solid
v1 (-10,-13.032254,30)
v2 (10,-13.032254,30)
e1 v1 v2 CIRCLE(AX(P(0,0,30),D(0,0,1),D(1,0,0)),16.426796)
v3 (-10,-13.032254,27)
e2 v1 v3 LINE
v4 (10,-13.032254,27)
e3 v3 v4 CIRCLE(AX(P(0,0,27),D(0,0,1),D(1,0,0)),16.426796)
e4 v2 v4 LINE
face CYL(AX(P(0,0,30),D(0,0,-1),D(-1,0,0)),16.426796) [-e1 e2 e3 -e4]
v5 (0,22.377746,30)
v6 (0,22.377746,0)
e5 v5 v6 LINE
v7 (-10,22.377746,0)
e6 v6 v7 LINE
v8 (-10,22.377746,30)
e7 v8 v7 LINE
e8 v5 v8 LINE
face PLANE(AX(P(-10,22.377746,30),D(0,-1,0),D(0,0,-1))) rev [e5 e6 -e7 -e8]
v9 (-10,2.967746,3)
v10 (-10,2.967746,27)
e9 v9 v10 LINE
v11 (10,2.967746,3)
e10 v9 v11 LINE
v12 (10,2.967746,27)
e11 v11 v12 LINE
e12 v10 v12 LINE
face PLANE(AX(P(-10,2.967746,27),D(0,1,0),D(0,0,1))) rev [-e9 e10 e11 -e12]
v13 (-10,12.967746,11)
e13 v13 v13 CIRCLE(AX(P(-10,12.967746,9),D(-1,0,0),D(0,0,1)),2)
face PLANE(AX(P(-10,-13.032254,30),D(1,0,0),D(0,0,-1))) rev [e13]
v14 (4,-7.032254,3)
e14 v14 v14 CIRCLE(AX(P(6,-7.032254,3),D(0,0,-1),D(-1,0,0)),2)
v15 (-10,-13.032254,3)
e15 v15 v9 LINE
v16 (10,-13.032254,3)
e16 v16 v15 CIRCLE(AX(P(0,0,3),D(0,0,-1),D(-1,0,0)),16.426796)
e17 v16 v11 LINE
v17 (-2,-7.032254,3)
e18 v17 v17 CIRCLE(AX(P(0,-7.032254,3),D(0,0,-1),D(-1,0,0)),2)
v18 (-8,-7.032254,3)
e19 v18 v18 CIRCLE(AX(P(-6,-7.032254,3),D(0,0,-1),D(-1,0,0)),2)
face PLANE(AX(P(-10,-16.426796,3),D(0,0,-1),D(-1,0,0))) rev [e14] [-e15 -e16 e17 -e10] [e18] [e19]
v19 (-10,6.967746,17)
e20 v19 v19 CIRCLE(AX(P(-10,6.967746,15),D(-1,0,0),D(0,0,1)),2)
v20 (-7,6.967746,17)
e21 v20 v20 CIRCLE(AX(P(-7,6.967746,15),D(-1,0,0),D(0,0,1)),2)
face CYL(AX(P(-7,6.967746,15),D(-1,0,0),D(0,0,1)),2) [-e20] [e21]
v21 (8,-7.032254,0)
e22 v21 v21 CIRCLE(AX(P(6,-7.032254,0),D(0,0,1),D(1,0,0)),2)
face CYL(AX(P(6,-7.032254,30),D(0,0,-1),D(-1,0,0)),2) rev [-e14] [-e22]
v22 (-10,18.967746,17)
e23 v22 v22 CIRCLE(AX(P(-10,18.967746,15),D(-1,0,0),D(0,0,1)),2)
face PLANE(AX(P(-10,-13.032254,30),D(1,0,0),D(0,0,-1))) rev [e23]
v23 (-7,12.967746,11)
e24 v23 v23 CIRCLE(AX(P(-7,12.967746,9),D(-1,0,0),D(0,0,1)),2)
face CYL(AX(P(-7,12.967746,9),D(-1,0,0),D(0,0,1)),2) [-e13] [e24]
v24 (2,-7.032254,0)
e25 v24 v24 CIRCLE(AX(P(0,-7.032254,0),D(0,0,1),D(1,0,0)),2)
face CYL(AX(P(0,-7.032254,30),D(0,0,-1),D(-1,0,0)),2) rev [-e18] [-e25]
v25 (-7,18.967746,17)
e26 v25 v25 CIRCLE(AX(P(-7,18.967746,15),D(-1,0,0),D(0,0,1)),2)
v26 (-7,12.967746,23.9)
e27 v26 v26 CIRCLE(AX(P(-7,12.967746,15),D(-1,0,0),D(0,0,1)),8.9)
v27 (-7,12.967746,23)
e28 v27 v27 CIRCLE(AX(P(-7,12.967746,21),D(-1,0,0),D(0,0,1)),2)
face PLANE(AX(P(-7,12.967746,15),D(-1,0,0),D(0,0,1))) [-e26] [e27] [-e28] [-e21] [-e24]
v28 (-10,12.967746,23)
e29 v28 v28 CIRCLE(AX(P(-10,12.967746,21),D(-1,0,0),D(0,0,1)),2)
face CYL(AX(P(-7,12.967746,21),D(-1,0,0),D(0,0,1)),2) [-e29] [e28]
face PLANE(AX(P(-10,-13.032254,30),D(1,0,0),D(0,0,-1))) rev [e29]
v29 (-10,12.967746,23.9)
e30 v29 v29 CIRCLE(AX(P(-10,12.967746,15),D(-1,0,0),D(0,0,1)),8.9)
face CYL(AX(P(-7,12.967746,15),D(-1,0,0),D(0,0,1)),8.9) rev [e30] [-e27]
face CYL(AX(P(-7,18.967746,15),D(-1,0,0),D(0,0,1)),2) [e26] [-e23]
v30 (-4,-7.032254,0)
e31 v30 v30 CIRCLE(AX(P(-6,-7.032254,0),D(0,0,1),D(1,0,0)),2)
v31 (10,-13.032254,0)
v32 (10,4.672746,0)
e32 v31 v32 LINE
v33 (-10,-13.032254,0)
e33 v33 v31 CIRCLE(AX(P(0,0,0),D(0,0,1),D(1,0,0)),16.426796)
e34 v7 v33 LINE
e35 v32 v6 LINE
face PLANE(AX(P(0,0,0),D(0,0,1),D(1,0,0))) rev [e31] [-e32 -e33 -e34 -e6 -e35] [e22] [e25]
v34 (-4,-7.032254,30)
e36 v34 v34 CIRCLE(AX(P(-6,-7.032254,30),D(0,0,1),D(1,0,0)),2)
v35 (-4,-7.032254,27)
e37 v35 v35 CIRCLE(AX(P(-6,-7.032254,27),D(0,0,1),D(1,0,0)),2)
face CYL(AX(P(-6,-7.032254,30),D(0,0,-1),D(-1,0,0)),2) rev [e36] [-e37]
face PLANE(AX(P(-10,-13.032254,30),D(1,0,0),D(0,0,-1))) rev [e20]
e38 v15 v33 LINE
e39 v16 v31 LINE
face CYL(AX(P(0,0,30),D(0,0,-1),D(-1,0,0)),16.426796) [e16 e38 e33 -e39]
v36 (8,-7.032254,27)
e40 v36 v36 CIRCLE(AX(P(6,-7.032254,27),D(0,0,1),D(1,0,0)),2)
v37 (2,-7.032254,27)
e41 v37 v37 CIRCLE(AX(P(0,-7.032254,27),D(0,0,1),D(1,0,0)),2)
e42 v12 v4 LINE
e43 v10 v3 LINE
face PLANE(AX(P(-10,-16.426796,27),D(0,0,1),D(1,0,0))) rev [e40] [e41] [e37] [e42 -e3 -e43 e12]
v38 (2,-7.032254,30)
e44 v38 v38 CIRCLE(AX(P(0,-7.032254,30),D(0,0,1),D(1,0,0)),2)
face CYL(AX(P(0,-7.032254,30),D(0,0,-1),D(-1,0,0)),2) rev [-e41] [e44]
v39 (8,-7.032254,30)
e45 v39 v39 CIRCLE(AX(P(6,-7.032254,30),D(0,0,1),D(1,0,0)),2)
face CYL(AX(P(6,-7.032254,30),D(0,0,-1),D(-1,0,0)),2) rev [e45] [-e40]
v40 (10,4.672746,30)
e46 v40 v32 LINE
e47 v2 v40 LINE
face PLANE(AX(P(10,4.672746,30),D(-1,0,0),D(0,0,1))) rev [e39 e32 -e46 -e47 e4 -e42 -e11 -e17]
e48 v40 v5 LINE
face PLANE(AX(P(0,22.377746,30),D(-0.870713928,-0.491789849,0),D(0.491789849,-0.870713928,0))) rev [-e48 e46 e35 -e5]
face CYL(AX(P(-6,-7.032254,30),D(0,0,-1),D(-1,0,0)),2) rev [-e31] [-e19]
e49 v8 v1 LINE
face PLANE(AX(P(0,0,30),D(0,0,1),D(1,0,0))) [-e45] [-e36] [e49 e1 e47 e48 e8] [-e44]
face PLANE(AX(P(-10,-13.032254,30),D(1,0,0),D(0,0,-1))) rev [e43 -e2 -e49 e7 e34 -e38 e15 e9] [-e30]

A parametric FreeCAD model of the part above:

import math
import FreeCAD as App
import Part
import Sketcher
Q = App.Units.Quantity


def add_polygon(sketch, points):
    """Adds a closed chain of lines whose ends are joined by coincident constraints."""
    first, n = sketch.GeometryCount, len(points)
    for a, b in zip(points, points[1:] + points[:1]):
        sketch.addGeometry(Part.LineSegment(App.Vector(*a, 0), App.Vector(*b, 0)), False)
    for i in range(n):
        sketch.addConstraint(Sketcher.Constraint("Coincident", first + i, 2, first + (i + 1) % n, 1))

doc = App.newDocument("Part")
body = doc.addObject("PartDesign::Body", "Body")

# Sketch on XY plane
sketch1 = body.newObject("Sketcher::SketchObject", "Sketch")
sketch1.AttachmentSupport = (doc.getObject("XY_Plane"), [""])
sketch1.MapMode = "FlatFace"
sketch1.addGeometry(Part.LineSegment(App.Vector(0, 22.4, 0), App.Vector(-10, 22.4, 0)), False)
sketch1.addGeometry(Part.LineSegment(App.Vector(-10, 22.4, 0), App.Vector(-10, -13, 0)), False)
sketch1.addGeometry(Part.ArcOfCircle(Part.Circle(App.Vector(0, 0, 0), App.Vector(0, 0, 1), 16.4), math.radians(-128), math.radians(-52)), False)
sketch1.addGeometry(Part.LineSegment(App.Vector(10, -13, 0), App.Vector(10, 4.7, 0)), False)
sketch1.addGeometry(Part.LineSegment(App.Vector(10, 4.7, 0), App.Vector(0, 22.4, 0)), False)
sketch1.addGeometry(Part.Circle(App.Vector(6, -7, 0), App.Vector(0, 0, 1), 2), False)
sketch1.addGeometry(Part.Circle(App.Vector(0, -7, 0), App.Vector(0, 0, 1), 2), False)
sketch1.addGeometry(Part.Circle(App.Vector(-6, -7, 0), App.Vector(0, 0, 1), 2), False)
sketch1.addConstraint(Sketcher.Constraint("Coincident", 0, 2, 1, 1))
sketch1.addConstraint(Sketcher.Constraint("Coincident", 1, 2, 2, 1))
sketch1.addConstraint(Sketcher.Constraint("Coincident", 2, 2, 3, 1))
sketch1.addConstraint(Sketcher.Constraint("Coincident", 3, 2, 4, 1))
sketch1.addConstraint(Sketcher.Constraint("Coincident", 4, 2, 0, 1))
sketch1.addConstraint(Sketcher.Constraint("Horizontal", 0))
sketch1.addConstraint(Sketcher.Constraint("Vertical", 1))
sketch1.addConstraint(Sketcher.Constraint("Vertical", 3))
sketch1.addConstraint(Sketcher.Constraint("Coincident", 2, 3, -1, 1))
sketch1.addConstraint(Sketcher.Constraint("Equal", 5, 6))
sketch1.addConstraint(Sketcher.Constraint("Equal", 6, 7))
sketch1.addConstraint(Sketcher.Constraint("Symmetric", 5, 3, 7, 3, -2))
sketch1.addConstraint(Sketcher.Constraint("PointOnObject", 6, 3, -2))
sketch1.addConstraint(Sketcher.Constraint("PointOnObject", 4, 2, -2))
sketch1.addConstraint(Sketcher.Constraint("Horizontal", 5, 3, 6, 3))
sketch1.addConstraint(Sketcher.Constraint("Horizontal", 1, 2, 2, 2))
sketch1.addConstraint(Sketcher.Constraint("Diameter", 5, Q("4 mm")))
sketch1.addConstraint(Sketcher.Constraint("DistanceX", 0, 2, 0, 1, Q("10 mm")))
sketch1.addConstraint(Sketcher.Constraint("DistanceX", -1, 1, 5, 3, Q("6 mm")))
sketch1.addConstraint(Sketcher.Constraint("DistanceY", 1, 2, 7, 3, Q("6 mm")))
sketch1.addConstraint(Sketcher.Constraint("DistanceY", 1, 2, 1, 1, Q("35.41 mm")))
sketch1.addConstraint(Sketcher.Constraint("DistanceY", 3, 1, 3, 2, Q("17.705 mm")))
sketch1.addConstraint(Sketcher.Constraint("Radius", 2, Q("16.426796 mm")))
pad1 = body.newObject("PartDesign::Pad", "Pad")
pad1.Profile = sketch1
pad1.Length = 30

# Sketch on YZ plane
sketch2 = body.newObject("Sketcher::SketchObject", "Sketch001")
sketch2.AttachmentSupport = (doc.getObject("YZ_Plane"), [""])
sketch2.MapMode = "FlatFace"
sketch2.AttachmentOffset = App.Placement(App.Vector(0, 0, 10), App.Rotation())
add_polygon(sketch2, [(3, 27), (-16, 27), (-16, 3), (3, 3)])  # lines 0-3
sketch2.addConstraint(Sketcher.Constraint("Horizontal", 0))
sketch2.addConstraint(Sketcher.Constraint("Vertical", 1))
sketch2.addConstraint(Sketcher.Constraint("Horizontal", 2))
sketch2.addConstraint(Sketcher.Constraint("Vertical", 3))
sketch2.addConstraint(Sketcher.Constraint("DistanceY", 1, 2, 1, 1, Q("24 mm")))
sketch2.addConstraint(Sketcher.Constraint("DistanceY", -1, 1, 0, 2, Q("27 mm")))
sketch2.addConstraint(Sketcher.Constraint("DistanceX", 0, 2, 0, 1, Q("19.394543 mm")))
sketch2.addConstraint(Sketcher.Constraint("DistanceX", 0, 2, -1, 1, Q("16.426796 mm")))
pocket1 = body.newObject("PartDesign::Pocket", "Pocket")
pocket1.Profile = sketch2
pocket1.Type = "ThroughAll"

# Sketch on YZ plane
sketch3 = body.newObject("Sketcher::SketchObject", "Sketch002")
sketch3.AttachmentSupport = (doc.getObject("YZ_Plane"), [""])
sketch3.MapMode = "FlatFace"
sketch3.AttachmentOffset = App.Placement(App.Vector(0, 0, -10), App.Rotation())
sketch3.addGeometry(Part.Circle(App.Vector(13, 15, 0), App.Vector(0, 0, 1), 8.9), False)
sketch3.addGeometry(Part.Circle(App.Vector(13, 9, 0), App.Vector(0, 0, 1), 2), False)
sketch3.addGeometry(Part.Circle(App.Vector(7, 15, 0), App.Vector(0, 0, 1), 2), False)
sketch3.addGeometry(Part.Circle(App.Vector(13, 21, 0), App.Vector(0, 0, 1), 2), False)
sketch3.addGeometry(Part.Circle(App.Vector(19, 15, 0), App.Vector(0, 0, 1), 2), False)
sketch3.addConstraint(Sketcher.Constraint("Equal", 1, 2))
sketch3.addConstraint(Sketcher.Constraint("Equal", 2, 3))
sketch3.addConstraint(Sketcher.Constraint("Equal", 3, 4))
sketch3.addConstraint(Sketcher.Constraint("Horizontal", 0, 3, 2, 3))
sketch3.addConstraint(Sketcher.Constraint("Horizontal", 2, 3, 4, 3))
sketch3.addConstraint(Sketcher.Constraint("Vertical", 0, 3, 1, 3))
sketch3.addConstraint(Sketcher.Constraint("Vertical", 1, 3, 3, 3))
sketch3.addConstraint(Sketcher.Constraint("Diameter", 1, Q("4 mm")))
sketch3.addConstraint(Sketcher.Constraint("Diameter", 0, Q("17.8 mm")))
sketch3.addConstraint(Sketcher.Constraint("DistanceY", -1, 1, 0, 3, Q("15 mm")))
sketch3.addConstraint(Sketcher.Constraint("DistanceY", -1, 1, 1, 3, Q("9 mm")))
sketch3.addConstraint(Sketcher.Constraint("DistanceY", -1, 1, 3, 3, Q("21 mm")))
sketch3.addConstraint(Sketcher.Constraint("DistanceX", 2, 3, 0, 3, Q("6 mm")))
sketch3.addConstraint(Sketcher.Constraint("DistanceX", 0, 3, 4, 3, Q("6 mm")))
sketch3.addConstraint(Sketcher.Constraint("DistanceX", -1, 1, 0, 3, Q("12.967746 mm")))
pocket2 = body.newObject("PartDesign::Pocket", "Pocket001")
pocket2.Profile = sketch3
pocket2.Length = 3
pocket2.Reversed = True

doc.recompute()
